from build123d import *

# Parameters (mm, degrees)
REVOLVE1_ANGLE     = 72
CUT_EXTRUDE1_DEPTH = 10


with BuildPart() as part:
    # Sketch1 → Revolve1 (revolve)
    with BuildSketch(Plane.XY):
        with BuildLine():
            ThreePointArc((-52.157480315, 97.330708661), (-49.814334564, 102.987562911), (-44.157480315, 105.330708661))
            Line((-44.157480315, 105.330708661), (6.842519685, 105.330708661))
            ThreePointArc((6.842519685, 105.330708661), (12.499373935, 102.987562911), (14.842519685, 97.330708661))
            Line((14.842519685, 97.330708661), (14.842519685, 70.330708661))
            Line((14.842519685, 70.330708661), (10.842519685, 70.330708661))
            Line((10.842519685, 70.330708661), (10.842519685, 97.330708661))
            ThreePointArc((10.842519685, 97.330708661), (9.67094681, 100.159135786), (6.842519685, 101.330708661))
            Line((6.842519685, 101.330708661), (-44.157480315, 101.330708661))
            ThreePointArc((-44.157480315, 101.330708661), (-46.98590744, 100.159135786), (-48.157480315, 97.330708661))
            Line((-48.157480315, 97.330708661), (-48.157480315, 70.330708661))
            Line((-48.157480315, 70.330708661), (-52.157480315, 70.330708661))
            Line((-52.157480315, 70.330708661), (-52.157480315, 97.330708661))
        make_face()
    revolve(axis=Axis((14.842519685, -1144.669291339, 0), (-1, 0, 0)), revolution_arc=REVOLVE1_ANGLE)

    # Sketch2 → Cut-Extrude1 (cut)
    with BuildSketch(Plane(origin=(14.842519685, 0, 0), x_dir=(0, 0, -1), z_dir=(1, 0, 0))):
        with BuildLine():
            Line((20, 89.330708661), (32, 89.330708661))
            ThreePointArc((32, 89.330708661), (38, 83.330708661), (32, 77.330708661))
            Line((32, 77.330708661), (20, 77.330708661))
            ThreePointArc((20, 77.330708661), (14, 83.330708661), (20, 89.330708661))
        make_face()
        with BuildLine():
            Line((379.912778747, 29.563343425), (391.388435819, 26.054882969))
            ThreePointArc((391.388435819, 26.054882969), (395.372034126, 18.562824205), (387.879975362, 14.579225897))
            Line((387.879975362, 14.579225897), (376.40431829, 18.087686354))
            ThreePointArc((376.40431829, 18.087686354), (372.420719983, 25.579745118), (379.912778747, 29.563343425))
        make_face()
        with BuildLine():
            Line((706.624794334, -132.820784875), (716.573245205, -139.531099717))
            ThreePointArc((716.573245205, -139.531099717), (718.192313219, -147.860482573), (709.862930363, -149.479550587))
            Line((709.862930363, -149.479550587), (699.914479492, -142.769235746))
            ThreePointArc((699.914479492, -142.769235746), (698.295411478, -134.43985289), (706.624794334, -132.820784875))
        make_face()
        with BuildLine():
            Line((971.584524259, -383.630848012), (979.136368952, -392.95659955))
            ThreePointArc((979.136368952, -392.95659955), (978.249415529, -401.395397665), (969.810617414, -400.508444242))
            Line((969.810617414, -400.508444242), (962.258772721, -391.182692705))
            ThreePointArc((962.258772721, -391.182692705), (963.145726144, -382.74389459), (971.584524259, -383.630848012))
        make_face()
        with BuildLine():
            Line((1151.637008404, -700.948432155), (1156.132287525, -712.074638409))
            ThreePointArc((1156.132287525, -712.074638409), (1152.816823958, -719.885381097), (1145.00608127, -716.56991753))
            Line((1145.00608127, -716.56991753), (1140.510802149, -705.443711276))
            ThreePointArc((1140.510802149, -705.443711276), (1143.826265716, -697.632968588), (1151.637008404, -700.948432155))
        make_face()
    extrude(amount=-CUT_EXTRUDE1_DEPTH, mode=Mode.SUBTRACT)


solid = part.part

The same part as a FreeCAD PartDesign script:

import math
import FreeCAD as App
import Part
import Sketcher

V = App.Vector
Q = App.Units.Quantity

doc = App.newDocument("Part")
body = doc.addObject("PartDesign::Body", "Body")

# Sketch on XY plane
sketch1 = doc.addObject("Sketcher::SketchObject", "Sketch")
body.addObject(sketch1)
sketch1.AttachmentSupport = (doc.XY_Plane, [""])
sketch1.MapMode = "FlatFace"
sketch1.addGeometry([
    Part.ArcOfCircle(Part.Circle(V(-44.2, 97.3, 0), V(0, 0, 1), 8), math.radians(90), math.radians(180)),  # 0
    Part.LineSegment(V(-52.2, 97.3, 0), V(-52.2, 70.3, 0)),  # 1
    Part.LineSegment(V(-52.2, 70.3, 0), V(-48.2, 70.3, 0)),  # 2
    Part.LineSegment(V(-48.2, 70.3, 0), V(-48.2, 97.3, 0)),  # 3
    Part.ArcOfCircle(Part.Circle(V(-44.2, 97.3, 0), V(0, 0, 1), 4), math.radians(90), math.radians(180)),  # 4
    Part.LineSegment(V(-44.2, 101.3, 0), V(6.8, 101.3, 0)),  # 5
    Part.ArcOfCircle(Part.Circle(V(6.8, 97.3, 0), V(0, 0, 1), 4), math.radians(0), math.radians(90)),  # 6
    Part.LineSegment(V(10.8, 97.3, 0), V(10.8, 70.3, 0)),  # 7
    Part.LineSegment(V(10.8, 70.3, 0), V(14.8, 70.3, 0)),  # 8
    Part.LineSegment(V(14.8, 70.3, 0), V(14.8, 97.3, 0)),  # 9
    Part.ArcOfCircle(Part.Circle(V(6.8, 97.3, 0), V(0, 0, 1), 8), math.radians(0), math.radians(90)),  # 10
    Part.LineSegment(V(6.8, 105.3, 0), V(-44.2, 105.3, 0)),  # 11
], False)
sketch1.addGeometry(Part.LineSegment(V(14.8, -1144.7, 0), V(-52.2, -1144.7, 0)), True)  # axis
sketch1.addConstraint([
    Sketcher.Constraint("Tangent", 0, 2, 1, 1),
    Sketcher.Constraint("Coincident", 1, 2, 2, 1),
    Sketcher.Constraint("Coincident", 2, 2, 3, 1),
    Sketcher.Constraint("Tangent", 3, 2, 4, 2),
    Sketcher.Constraint("Tangent", 4, 1, 5, 1),
    Sketcher.Constraint("Tangent", 5, 2, 6, 2),
    Sketcher.Constraint("Tangent", 6, 1, 7, 1),
    Sketcher.Constraint("Coincident", 7, 2, 8, 1),
    Sketcher.Constraint("Coincident", 8, 2, 9, 1),
    Sketcher.Constraint("Tangent", 9, 2, 10, 1),
    Sketcher.Constraint("Tangent", 10, 2, 11, 1),
    Sketcher.Constraint("Tangent", 11, 2, 0, 1),
    Sketcher.Constraint("Vertical", 1),
    Sketcher.Constraint("Horizontal", 2),
    Sketcher.Constraint("Vertical", 3),
    Sketcher.Constraint("Horizontal", 5),
    Sketcher.Constraint("Vertical", 7),
    Sketcher.Constraint("Horizontal", 8),
    Sketcher.Constraint("Vertical", 9),
    Sketcher.Constraint("Horizontal", 11),
    Sketcher.Constraint("Horizontal", 12),
    Sketcher.Constraint("Coincident", 4, 3, 0, 3),
    Sketcher.Constraint("Coincident", 10, 3, 6, 3),
    Sketcher.Constraint("Equal", 4, 6),
    Sketcher.Constraint("Horizontal", 2, 2, 7, 2),
    Sketcher.Constraint("Vertical", 9, 2, 12, 1),
    Sketcher.Constraint("Vertical", 1, 2, 12, 2),
    Sketcher.Constraint("Radius", 0, Q("8 mm")),
    Sketcher.Constraint("Radius", 4, Q("4 mm")),
    Sketcher.Constraint("DistanceX", 5, 1, 5, 2, Q("51 mm")),
    Sketcher.Constraint("DistanceY", 1, 2, 1, 1, Q("27 mm")),
    Sketcher.Constraint("DistanceY", 12, 1, 8, 2, Q("1215 mm")),
    Sketcher.Constraint("DistanceX", 0, 3, -1, 1, Q("44.15748 mm")),
    Sketcher.Constraint("DistanceY", -1, 1, 0, 3, Q("97.330709 mm")),
])
revolution = doc.addObject("PartDesign::Revolution", "Revolution")
body.addObject(revolution)
revolution.Profile = sketch1
revolution.ReferenceAxis = (sketch1, ["Axis0"])
revolution.Angle = 72

# Sketch on YZ plane
sketch2 = doc.addObject("Sketcher::SketchObject", "Sketch001")
body.addObject(sketch2)
sketch2.AttachmentSupport = (doc.YZ_Plane, [""])
sketch2.MapMode = "FlatFace"
sketch2.AttachmentOffset = App.Placement(V(0, 0, 14.84252), App.Rotation())
sketch2.addGeometry([
    Part.LineSegment(V(89, -32, 0), V(89, -20, 0)),  # 0
    Part.ArcOfCircle(Part.Circle(V(83, -20, 0), V(0, 0, 1), 6), math.radians(0), math.radians(180)),  # 1
    Part.LineSegment(V(77, -20, 0), V(77, -32, 0)),  # 2
    Part.ArcOfCircle(Part.Circle(V(83, -32, 0), V(0, 0, 1), 6), math.radians(180), math.radians(360)),  # 3
    Part.LineSegment(V(26, -391, 0), V(30, -380, 0)),  # 4
    Part.ArcOfCircle(Part.Circle(V(24, -378, 0), V(0, 0, 1), 6), math.radians(-17), math.radians(163)),  # 5
    Part.LineSegment(V(18, -376, 0), V(15, -388, 0)),  # 6
    Part.ArcOfCircle(Part.Circle(V(20, -390, 0), V(0, 0, 1), 6), math.radians(163), math.radians(343)),  # 7
    Part.LineSegment(V(-140, -717, 0), V(-133, -707, 0)),  # 8
    Part.ArcOfCircle(Part.Circle(V(-138, -703, 0), V(0, 0, 1), 6), math.radians(-34), math.radians(146)),  # 9
    Part.LineSegment(V(-143, -700, 0), V(-149, -710, 0)),  # 10
    Part.ArcOfCircle(Part.Circle(V(-145, -713, 0), V(0, 0, 1), 6), math.radians(146), math.radians(326)),  # 11
    Part.LineSegment(V(-393, -979, 0), V(-384, -972, 0)),  # 12
    Part.ArcOfCircle(Part.Circle(V(-387, -967, 0), V(0, 0, 1), 6), math.radians(-51), math.radians(129)),  # 13
    Part.LineSegment(V(-391, -962, 0), V(-401, -970, 0)),  # 14
    Part.ArcOfCircle(Part.Circle(V(-397, -974, 0), V(0, 0, 1), 6), math.radians(129), math.radians(309)),  # 15
    Part.LineSegment(V(-712, -1156, 0), V(-701, -1152, 0)),  # 16
    Part.ArcOfCircle(Part.Circle(V(-703, -1146, 0), V(0, 0, 1), 6), math.radians(-68), math.radians(112)),  # 17
    Part.LineSegment(V(-705, -1141, 0), V(-717, -1145, 0)),  # 18
    Part.ArcOfCircle(Part.Circle(V(-714, -1151, 0), V(0, 0, 1), 6), math.radians(112), math.radians(292)),  # 19
], False)
sketch2.addConstraint([
    Sketcher.Constraint("Tangent", 0, 2, 1, 1),
    Sketcher.Constraint("Tangent", 1, 2, 2, 1),
    Sketcher.Constraint("Tangent", 2, 2, 3, 1),
    Sketcher.Constraint("Tangent", 3, 2, 0, 1),
    Sketcher.Constraint("Tangent", 4, 2, 5, 1),
    Sketcher.Constraint("Tangent", 5, 2, 6, 1),
    Sketcher.Constraint("Tangent", 6, 2, 7, 1),
    Sketcher.Constraint("Tangent", 7, 2, 4, 1),
    Sketcher.Constraint("Tangent", 8, 2, 9, 1),
    Sketcher.Constraint("Tangent", 9, 2, 10, 1),
    Sketcher.Constraint("Tangent", 10, 2, 11, 1),
    Sketcher.Constraint("Tangent", 11, 2, 8, 1),
    Sketcher.Constraint("Tangent", 12, 2, 13, 1),
    Sketcher.Constraint("Tangent", 13, 2, 14, 1),
    Sketcher.Constraint("Tangent", 14, 2, 15, 1),
    Sketcher.Constraint("Tangent", 15, 2, 12, 1),
    Sketcher.Constraint("Tangent", 16, 2, 17, 1),
    Sketcher.Constraint("Tangent", 17, 2, 18, 1),
    Sketcher.Constraint("Tangent", 18, 2, 19, 1),
    Sketcher.Constraint("Tangent", 19, 2, 16, 1),
    Sketcher.Constraint("Vertical", 0),
    Sketcher.Constraint("Vertical", 2),
    Sketcher.Constraint("Equal", 3, 5),
    Sketcher.Constraint("Equal", 5, 7),
    Sketcher.Constraint("Equal", 7, 9),
    Sketcher.Constraint("Equal", 9, 11),
    Sketcher.Constraint("Equal", 11, 13),
    Sketcher.Constraint("Equal", 13, 15),
    Sketcher.Constraint("Equal", 15, 17),
    Sketcher.Constraint("Equal", 17, 19),
    Sketcher.Constraint("Equal", 6, 8),
    Sketcher.Constraint("Equal", 10, 12),
    Sketcher.Constraint("Equal", 14, 16),
    Sketcher.Constraint("Radius", 1, Q("6 mm")),
    Sketcher.Constraint("DistanceY", 0, 1, 0, 2, Q("12 mm")),
    Sketcher.Constraint("Angle", 4, Q("73 deg")),
    Sketcher.Constraint("Angle", 8, Q("56 deg")),
    Sketcher.Constraint("Angle", 12, Q("39 deg")),
    Sketcher.Constraint("Angle", 16, Q("22 deg")),
    Sketcher.Constraint("Distance", 4, Q("12 mm")),
    Sketcher.Constraint("DistanceY", 1, 3, -1, 1, Q("20 mm")),
    Sketcher.Constraint("DistanceX", 11, 2, -1, 1, Q("139.5311 mm")),
    Sketcher.Constraint("DistanceX", 15, 2, -1, 1, Q("392.9566 mm")),
    Sketcher.Constraint("DistanceY", 13, 3, 5, 3, Q("588.7631 mm")),
    Sketcher.Constraint("DistanceX", 17, 3, 13, 3, Q("315.789301 mm")),
    Sketcher.Constraint("DistanceY", 17, 3, 7, 3, Q("756.4397 mm")),
    Sketcher.Constraint("DistanceX", -1, 1, 1, 3, Q("83.330709 mm")),
    Sketcher.Constraint("DistanceY", 5, 3, -1, 1, Q("378.158549 mm")),
    Sketcher.Constraint("DistanceY", 9, 2, -1, 1, Q("699.914479 mm")),
    Sketcher.Constraint("DistanceX", 11, 3, 7, 3, Q("164.82238 mm")),
])
pocket1 = doc.addObject("PartDesign::Pocket", "Pocket")
body.addObject(pocket1)
pocket1.Profile = sketch2
pocket1.Length = 10

doc.recompute()
